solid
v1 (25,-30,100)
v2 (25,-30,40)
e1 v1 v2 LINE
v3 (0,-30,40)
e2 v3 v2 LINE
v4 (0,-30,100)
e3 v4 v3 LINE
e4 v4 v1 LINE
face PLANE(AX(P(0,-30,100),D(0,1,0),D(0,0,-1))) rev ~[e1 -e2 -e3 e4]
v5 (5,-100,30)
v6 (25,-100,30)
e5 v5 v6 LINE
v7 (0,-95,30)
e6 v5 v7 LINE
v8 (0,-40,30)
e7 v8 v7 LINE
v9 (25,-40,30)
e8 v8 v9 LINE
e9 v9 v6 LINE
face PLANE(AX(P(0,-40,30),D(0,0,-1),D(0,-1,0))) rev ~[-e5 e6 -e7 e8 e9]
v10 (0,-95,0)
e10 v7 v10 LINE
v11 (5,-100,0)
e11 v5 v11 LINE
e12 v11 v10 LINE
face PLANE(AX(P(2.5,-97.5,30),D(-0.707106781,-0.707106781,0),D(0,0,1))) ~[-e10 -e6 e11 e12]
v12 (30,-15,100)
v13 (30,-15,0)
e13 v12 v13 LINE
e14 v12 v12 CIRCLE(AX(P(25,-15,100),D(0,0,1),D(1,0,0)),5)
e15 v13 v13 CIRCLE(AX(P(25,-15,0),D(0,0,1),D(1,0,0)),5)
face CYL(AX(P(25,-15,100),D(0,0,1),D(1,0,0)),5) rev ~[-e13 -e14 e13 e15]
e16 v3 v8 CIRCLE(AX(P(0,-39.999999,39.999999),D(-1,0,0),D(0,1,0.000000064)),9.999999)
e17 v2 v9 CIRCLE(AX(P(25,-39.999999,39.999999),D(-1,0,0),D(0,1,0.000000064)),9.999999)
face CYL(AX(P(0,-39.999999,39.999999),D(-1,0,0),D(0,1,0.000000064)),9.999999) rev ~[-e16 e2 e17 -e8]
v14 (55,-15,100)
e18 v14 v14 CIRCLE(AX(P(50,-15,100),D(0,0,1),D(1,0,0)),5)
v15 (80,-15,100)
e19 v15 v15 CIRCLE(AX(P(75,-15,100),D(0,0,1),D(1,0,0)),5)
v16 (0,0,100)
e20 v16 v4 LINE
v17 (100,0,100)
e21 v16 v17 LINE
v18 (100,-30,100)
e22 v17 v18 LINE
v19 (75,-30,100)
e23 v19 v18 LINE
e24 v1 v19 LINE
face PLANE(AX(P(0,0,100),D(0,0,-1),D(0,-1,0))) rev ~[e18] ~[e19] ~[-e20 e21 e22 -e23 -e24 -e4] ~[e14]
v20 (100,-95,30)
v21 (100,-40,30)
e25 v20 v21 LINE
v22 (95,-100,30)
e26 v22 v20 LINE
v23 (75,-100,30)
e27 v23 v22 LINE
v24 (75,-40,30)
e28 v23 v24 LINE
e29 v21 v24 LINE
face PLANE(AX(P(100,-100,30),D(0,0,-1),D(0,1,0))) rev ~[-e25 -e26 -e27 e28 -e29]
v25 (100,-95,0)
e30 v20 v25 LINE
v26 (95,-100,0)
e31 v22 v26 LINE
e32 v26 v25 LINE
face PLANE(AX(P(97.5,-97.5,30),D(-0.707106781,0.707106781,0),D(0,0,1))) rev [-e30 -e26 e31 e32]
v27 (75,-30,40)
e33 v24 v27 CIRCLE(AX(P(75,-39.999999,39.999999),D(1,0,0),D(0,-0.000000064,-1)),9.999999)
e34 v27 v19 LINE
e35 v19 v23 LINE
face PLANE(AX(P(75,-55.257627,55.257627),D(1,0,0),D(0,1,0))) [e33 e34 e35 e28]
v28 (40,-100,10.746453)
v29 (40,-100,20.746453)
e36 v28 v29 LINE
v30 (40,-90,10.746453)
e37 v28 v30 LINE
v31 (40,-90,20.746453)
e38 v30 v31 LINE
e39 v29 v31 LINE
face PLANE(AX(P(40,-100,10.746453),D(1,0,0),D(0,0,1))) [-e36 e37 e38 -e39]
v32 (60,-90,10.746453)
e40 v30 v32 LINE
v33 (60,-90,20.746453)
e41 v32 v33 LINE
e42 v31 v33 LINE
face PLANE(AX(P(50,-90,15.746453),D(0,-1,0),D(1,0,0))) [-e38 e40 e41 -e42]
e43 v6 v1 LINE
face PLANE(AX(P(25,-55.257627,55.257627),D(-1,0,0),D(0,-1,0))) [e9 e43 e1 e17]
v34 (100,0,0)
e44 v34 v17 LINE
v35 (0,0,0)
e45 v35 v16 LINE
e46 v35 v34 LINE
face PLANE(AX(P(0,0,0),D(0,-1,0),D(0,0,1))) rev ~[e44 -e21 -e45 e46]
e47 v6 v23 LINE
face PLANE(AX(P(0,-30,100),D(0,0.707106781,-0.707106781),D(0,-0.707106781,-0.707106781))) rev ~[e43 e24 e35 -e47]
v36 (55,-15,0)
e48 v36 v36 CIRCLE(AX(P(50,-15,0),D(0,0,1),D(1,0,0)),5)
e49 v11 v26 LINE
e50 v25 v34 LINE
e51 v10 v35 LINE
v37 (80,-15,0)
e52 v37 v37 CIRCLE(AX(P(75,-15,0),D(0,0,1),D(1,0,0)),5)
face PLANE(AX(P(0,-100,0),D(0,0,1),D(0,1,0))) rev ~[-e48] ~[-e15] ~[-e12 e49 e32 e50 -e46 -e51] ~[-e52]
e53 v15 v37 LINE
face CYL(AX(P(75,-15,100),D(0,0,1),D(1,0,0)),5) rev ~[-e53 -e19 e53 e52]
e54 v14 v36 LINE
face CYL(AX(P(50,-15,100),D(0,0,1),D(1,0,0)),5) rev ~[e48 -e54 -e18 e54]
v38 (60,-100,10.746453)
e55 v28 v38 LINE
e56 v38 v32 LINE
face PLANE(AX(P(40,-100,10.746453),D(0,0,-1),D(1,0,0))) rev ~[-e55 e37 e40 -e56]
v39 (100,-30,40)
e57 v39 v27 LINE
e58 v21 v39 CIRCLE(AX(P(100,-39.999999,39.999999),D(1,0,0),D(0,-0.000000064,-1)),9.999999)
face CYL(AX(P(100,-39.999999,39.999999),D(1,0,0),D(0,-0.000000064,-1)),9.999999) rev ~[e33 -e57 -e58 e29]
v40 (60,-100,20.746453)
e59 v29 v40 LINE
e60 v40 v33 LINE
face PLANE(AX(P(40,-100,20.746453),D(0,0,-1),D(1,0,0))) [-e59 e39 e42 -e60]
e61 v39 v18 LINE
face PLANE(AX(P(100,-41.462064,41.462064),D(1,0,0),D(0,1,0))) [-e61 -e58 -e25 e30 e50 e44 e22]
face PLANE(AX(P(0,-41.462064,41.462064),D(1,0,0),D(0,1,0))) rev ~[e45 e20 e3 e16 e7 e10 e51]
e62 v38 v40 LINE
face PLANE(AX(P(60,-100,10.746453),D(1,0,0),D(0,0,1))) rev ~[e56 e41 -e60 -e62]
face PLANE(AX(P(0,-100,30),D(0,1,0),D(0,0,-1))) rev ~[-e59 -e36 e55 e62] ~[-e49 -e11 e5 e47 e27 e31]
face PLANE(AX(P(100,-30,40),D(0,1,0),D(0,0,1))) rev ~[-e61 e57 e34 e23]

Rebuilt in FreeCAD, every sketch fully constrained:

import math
import FreeCAD as App
import Part
import Sketcher
from FreeCAD import Vector


def edges_at(feature, points):
    """Names of the edges that pass closest to the given points."""
    edges = feature.Shape.Edges
    near = lambda p: min(range(len(edges)), key=lambda i: edges[i].distToShape(Part.Vertex(*p))[0])
    return sorted({f"Edge{near(p) + 1}" for p in points})


def add_polygon(sketch, points):
    """Adds a closed chain of lines whose ends are joined by coincident constraints."""
    first, n = sketch.GeometryCount, len(points)
    for a, b in zip(points, points[1:] + points[:1]):
        sketch.addGeometry(Part.LineSegment(App.Vector(*a, 0), App.Vector(*b, 0)), False)
    for i in range(n):
        sketch.addConstraint(Sketcher.Constraint("Coincident", first + i, 2, first + (i + 1) % n, 1))

doc = App.newDocument("Part")
params = doc.addObject("Spreadsheet::Sheet", "Params")
for row, (alias, value) in enumerate([
    ("sketch1_width", "100 mm"),
    ("sketch1_width2", "30 mm"),
    ("pad1_length", "100 mm"),
    ("sketch2_radius", "9.999999 mm"),
    ("sketch2_width", "60 mm"),
    ("pocket1_length", "25 mm"),
    ("sketch3_radius", "9.999999 mm"),
    ("sketch3_width", "60 mm"),
    ("pocket2_length", "25 mm"),
    ("sketch4_diameter", "10 mm"),
    ("pocket3_length", "100 mm"),
    ("sketch5_width", "20 mm"),
    ("sketch5_height", "10 mm"),
    ("pocket4_length", "10 mm"),
    ("chamfer_size", "5 mm"),
    ("chamfer2_size", "5 mm"),
], start=1):
    params.set(f"A{row}", alias)
    params.set(f"B{row}", "=" + value)
    params.setAlias(f"B{row}", alias)

body = doc.addObject("PartDesign::Body", "Body")

sketch1 = body.newObject("Sketcher::SketchObject", "Sketch")
sketch1.AttachmentSupport = (doc.getObject("YZ_Plane"), [""])
sketch1.MapMode = "FlatFace"
add_polygon(sketch1, [(-100, 0), (0, 0), (0, 100), (-30, 100), (-100, 30)])
sketch1.addConstraint([
    Sketcher.Constraint("Horizontal", 0),
    Sketcher.Constraint("Vertical", 1),
    Sketcher.Constraint("Horizontal", 2),
    Sketcher.Constraint("Vertical", 4),
    Sketcher.Constraint("Coincident", 0, 2, -1, 1),
    Sketcher.Constraint("Equal", 0, 1),
    Sketcher.Constraint("Equal", 2, 4),
    Sketcher.Constraint("DistanceX", 0, 1, 0, 2, 100.0),
    Sketcher.Constraint("DistanceX", 2, 2, 2, 1, 30.0),
])
sketch1.setExpression("Constraints[12]", "Params.sketch1_width")
sketch1.setExpression("Constraints[13]", "Params.sketch1_width2")
pad1 = body.newObject("PartDesign::Pad", "Pad")
pad1.Profile = sketch1
pad1.setExpression("Length", "Params.pad1_length")

sketch2 = body.newObject("Sketcher::SketchObject", "Sketch001")
sketch2.AttachmentSupport = (doc.getObject("YZ_Plane"), [""])
sketch2.MapMode = "FlatFace"
sketch2.addGeometry([
    Part.LineSegment(Vector(-100, 30, 0), Vector(-30, 100, 0)),
    Part.LineSegment(Vector(-30, 100, 0), Vector(-30, 40, 0)),
    Part.ArcOfCircle(Part.Circle(Vector(-40, 40, 0), Vector(0, 0, 1), 10), math.radians(-90), math.radians(0)),
    Part.LineSegment(Vector(-40, 30, 0), Vector(-100, 30, 0)),
], False)
sketch2.addConstraint([
    Sketcher.Constraint("Coincident", 0, 2, 1, 1),
    Sketcher.Constraint("Tangent", 1, 2, 2, 2),
    Sketcher.Constraint("Tangent", 2, 1, 3, 1),
    Sketcher.Constraint("Coincident", 3, 2, 0, 1),
    Sketcher.Constraint("Vertical", 1),
    Sketcher.Constraint("Horizontal", 3),
    Sketcher.Constraint("Equal", 3, 1),
    Sketcher.Constraint("Radius", 2, 9.999999),
    Sketcher.Constraint("DistanceX", 3, 2, 3, 1, 60.0),
    Sketcher.Constraint("DistanceX", 2, 3, -1, 1, 39.999999),
    Sketcher.Constraint("DistanceY", -1, 1, 2, 3, 39.999999),
])
sketch2.setExpression("Constraints[7]", "Params.sketch2_radius")
sketch2.setExpression("Constraints[8]", "Params.sketch2_width")
pocket1 = body.newObject("PartDesign::Pocket", "Pocket")
pocket1.Profile = sketch2
pocket1.setExpression("Length", "Params.pocket1_length")
pocket1.Reversed = True

sketch3 = body.newObject("Sketcher::SketchObject", "Sketch002")
sketch3.AttachmentSupport = (doc.getObject("YZ_Plane"), [""])
sketch3.MapMode = "FlatFace"
sketch3.AttachmentOffset = App.Placement(Vector(0, 0, 100), App.Rotation())
sketch3.addGeometry([
    Part.LineSegment(Vector(-30, 40, 0), Vector(-30, 100, 0)),
    Part.LineSegment(Vector(-30, 100, 0), Vector(-100, 30, 0)),
    Part.LineSegment(Vector(-100, 30, 0), Vector(-40, 30, 0)),
    Part.ArcOfCircle(Part.Circle(Vector(-40, 40, 0), Vector(0, 0, 1), 10), math.radians(-90), math.radians(0)),
], False)
sketch3.addConstraint([
    Sketcher.Constraint("Coincident", 0, 2, 1, 1),
    Sketcher.Constraint("Coincident", 1, 2, 2, 1),
    Sketcher.Constraint("Tangent", 2, 2, 3, 1),
    Sketcher.Constraint("Tangent", 3, 2, 0, 1),
    Sketcher.Constraint("Vertical", 0),
    Sketcher.Constraint("Horizontal", 2),
    Sketcher.Constraint("Equal", 2, 0),
    Sketcher.Constraint("Radius", 3, 9.999999),
    Sketcher.Constraint("DistanceX", 2, 1, 2, 2, 60.0),
    Sketcher.Constraint("DistanceX", 3, 3, -1, 1, 39.999999),
    Sketcher.Constraint("DistanceY", -1, 1, 3, 3, 39.999999),
])
sketch3.setExpression("Constraints[7]", "Params.sketch3_radius")
sketch3.setExpression("Constraints[8]", "Params.sketch3_width")
pocket2 = body.newObject("PartDesign::Pocket", "Pocket001")
pocket2.Profile = sketch3
pocket2.setExpression("Length", "Params.pocket2_length")

sketch4 = body.newObject("Sketcher::SketchObject", "Sketch003")
sketch4.AttachmentSupport = (doc.getObject("XY_Plane"), [""])
sketch4.MapMode = "FlatFace"
sketch4.AttachmentOffset = App.Placement(Vector(0, 0, 100), App.Rotation())
sketch4.addGeometry([
    Part.Circle(Vector(25, -15, 0), Vector(0, 0, 1), 5),
    Part.Circle(Vector(50, -15, 0), Vector(0, 0, 1), 5),
    Part.Circle(Vector(75, -15, 0), Vector(0, 0, 1), 5),
], False)
sketch4.addConstraint([
    Sketcher.Constraint("Equal", 0, 1),
    Sketcher.Constraint("Equal", 1, 2),
    Sketcher.Constraint("Horizontal", 0, 3, 1, 3),
    Sketcher.Constraint("Horizontal", 1, 3, 2, 3),
    Sketcher.Constraint("Diameter", 0, 10.0),
    Sketcher.Constraint("DistanceX", -1, 1, 0, 3, 25.0),
    Sketcher.Constraint("DistanceY", 0, 3, -1, 1, 15.0),
    Sketcher.Constraint("DistanceX", -1, 1, 1, 3, 50.0),
    Sketcher.Constraint("DistanceX", -1, 1, 2, 3, 75.0),
])
sketch4.setExpression("Constraints[4]", "Params.sketch4_diameter")
pocket3 = body.newObject("PartDesign::Pocket", "Pocket002")
pocket3.Profile = sketch4
pocket3.setExpression("Length", "Params.pocket3_length")

sketch5 = body.newObject("Sketcher::SketchObject", "Sketch004")
sketch5.AttachmentSupport = (doc.getObject("XZ_Plane"), [""])
sketch5.MapMode = "FlatFace"
sketch5.AttachmentOffset = App.Placement(Vector(0, 0, 100), App.Rotation())
add_polygon(sketch5, [(40, 21), (40, 11), (60, 11), (60, 21)])
sketch5.addConstraint([
    Sketcher.Constraint("Vertical", 0),
    Sketcher.Constraint("Horizontal", 1),
    Sketcher.Constraint("Vertical", 2),
    Sketcher.Constraint("Horizontal", 3),
    Sketcher.Constraint("DistanceX", 1, 1, 1, 2, 20.0),
    Sketcher.Constraint("DistanceY", 0, 2, 0, 1, 10.0),
    Sketcher.Constraint("DistanceX", -1, 1, 0, 2, 40.0),
    Sketcher.Constraint("DistanceY", -1, 1, 0, 2, 10.746453),
])
sketch5.setExpression("Constraints[8]", "Params.sketch5_width")
sketch5.setExpression("Constraints[9]", "Params.sketch5_height")
pocket4 = body.newObject("PartDesign::Pocket", "Pocket003")
pocket4.Profile = sketch5
pocket4.setExpression("Length", "Params.pocket4_length")
doc.recompute()

chamfer = body.newObject("PartDesign::Chamfer", "Chamfer")
chamfer.Base = (pocket4, edges_at(pocket4, [(0, -100, 15)]))
chamfer.setExpression("Size", "Params.chamfer_size")
doc.recompute()

chamfer2 = body.newObject("PartDesign::Chamfer", "Chamfer001")
chamfer2.Base = (chamfer, edges_at(chamfer, [(100, -100, 15)]))
chamfer2.setExpression("Size", "Params.chamfer2_size")

doc.recompute()
